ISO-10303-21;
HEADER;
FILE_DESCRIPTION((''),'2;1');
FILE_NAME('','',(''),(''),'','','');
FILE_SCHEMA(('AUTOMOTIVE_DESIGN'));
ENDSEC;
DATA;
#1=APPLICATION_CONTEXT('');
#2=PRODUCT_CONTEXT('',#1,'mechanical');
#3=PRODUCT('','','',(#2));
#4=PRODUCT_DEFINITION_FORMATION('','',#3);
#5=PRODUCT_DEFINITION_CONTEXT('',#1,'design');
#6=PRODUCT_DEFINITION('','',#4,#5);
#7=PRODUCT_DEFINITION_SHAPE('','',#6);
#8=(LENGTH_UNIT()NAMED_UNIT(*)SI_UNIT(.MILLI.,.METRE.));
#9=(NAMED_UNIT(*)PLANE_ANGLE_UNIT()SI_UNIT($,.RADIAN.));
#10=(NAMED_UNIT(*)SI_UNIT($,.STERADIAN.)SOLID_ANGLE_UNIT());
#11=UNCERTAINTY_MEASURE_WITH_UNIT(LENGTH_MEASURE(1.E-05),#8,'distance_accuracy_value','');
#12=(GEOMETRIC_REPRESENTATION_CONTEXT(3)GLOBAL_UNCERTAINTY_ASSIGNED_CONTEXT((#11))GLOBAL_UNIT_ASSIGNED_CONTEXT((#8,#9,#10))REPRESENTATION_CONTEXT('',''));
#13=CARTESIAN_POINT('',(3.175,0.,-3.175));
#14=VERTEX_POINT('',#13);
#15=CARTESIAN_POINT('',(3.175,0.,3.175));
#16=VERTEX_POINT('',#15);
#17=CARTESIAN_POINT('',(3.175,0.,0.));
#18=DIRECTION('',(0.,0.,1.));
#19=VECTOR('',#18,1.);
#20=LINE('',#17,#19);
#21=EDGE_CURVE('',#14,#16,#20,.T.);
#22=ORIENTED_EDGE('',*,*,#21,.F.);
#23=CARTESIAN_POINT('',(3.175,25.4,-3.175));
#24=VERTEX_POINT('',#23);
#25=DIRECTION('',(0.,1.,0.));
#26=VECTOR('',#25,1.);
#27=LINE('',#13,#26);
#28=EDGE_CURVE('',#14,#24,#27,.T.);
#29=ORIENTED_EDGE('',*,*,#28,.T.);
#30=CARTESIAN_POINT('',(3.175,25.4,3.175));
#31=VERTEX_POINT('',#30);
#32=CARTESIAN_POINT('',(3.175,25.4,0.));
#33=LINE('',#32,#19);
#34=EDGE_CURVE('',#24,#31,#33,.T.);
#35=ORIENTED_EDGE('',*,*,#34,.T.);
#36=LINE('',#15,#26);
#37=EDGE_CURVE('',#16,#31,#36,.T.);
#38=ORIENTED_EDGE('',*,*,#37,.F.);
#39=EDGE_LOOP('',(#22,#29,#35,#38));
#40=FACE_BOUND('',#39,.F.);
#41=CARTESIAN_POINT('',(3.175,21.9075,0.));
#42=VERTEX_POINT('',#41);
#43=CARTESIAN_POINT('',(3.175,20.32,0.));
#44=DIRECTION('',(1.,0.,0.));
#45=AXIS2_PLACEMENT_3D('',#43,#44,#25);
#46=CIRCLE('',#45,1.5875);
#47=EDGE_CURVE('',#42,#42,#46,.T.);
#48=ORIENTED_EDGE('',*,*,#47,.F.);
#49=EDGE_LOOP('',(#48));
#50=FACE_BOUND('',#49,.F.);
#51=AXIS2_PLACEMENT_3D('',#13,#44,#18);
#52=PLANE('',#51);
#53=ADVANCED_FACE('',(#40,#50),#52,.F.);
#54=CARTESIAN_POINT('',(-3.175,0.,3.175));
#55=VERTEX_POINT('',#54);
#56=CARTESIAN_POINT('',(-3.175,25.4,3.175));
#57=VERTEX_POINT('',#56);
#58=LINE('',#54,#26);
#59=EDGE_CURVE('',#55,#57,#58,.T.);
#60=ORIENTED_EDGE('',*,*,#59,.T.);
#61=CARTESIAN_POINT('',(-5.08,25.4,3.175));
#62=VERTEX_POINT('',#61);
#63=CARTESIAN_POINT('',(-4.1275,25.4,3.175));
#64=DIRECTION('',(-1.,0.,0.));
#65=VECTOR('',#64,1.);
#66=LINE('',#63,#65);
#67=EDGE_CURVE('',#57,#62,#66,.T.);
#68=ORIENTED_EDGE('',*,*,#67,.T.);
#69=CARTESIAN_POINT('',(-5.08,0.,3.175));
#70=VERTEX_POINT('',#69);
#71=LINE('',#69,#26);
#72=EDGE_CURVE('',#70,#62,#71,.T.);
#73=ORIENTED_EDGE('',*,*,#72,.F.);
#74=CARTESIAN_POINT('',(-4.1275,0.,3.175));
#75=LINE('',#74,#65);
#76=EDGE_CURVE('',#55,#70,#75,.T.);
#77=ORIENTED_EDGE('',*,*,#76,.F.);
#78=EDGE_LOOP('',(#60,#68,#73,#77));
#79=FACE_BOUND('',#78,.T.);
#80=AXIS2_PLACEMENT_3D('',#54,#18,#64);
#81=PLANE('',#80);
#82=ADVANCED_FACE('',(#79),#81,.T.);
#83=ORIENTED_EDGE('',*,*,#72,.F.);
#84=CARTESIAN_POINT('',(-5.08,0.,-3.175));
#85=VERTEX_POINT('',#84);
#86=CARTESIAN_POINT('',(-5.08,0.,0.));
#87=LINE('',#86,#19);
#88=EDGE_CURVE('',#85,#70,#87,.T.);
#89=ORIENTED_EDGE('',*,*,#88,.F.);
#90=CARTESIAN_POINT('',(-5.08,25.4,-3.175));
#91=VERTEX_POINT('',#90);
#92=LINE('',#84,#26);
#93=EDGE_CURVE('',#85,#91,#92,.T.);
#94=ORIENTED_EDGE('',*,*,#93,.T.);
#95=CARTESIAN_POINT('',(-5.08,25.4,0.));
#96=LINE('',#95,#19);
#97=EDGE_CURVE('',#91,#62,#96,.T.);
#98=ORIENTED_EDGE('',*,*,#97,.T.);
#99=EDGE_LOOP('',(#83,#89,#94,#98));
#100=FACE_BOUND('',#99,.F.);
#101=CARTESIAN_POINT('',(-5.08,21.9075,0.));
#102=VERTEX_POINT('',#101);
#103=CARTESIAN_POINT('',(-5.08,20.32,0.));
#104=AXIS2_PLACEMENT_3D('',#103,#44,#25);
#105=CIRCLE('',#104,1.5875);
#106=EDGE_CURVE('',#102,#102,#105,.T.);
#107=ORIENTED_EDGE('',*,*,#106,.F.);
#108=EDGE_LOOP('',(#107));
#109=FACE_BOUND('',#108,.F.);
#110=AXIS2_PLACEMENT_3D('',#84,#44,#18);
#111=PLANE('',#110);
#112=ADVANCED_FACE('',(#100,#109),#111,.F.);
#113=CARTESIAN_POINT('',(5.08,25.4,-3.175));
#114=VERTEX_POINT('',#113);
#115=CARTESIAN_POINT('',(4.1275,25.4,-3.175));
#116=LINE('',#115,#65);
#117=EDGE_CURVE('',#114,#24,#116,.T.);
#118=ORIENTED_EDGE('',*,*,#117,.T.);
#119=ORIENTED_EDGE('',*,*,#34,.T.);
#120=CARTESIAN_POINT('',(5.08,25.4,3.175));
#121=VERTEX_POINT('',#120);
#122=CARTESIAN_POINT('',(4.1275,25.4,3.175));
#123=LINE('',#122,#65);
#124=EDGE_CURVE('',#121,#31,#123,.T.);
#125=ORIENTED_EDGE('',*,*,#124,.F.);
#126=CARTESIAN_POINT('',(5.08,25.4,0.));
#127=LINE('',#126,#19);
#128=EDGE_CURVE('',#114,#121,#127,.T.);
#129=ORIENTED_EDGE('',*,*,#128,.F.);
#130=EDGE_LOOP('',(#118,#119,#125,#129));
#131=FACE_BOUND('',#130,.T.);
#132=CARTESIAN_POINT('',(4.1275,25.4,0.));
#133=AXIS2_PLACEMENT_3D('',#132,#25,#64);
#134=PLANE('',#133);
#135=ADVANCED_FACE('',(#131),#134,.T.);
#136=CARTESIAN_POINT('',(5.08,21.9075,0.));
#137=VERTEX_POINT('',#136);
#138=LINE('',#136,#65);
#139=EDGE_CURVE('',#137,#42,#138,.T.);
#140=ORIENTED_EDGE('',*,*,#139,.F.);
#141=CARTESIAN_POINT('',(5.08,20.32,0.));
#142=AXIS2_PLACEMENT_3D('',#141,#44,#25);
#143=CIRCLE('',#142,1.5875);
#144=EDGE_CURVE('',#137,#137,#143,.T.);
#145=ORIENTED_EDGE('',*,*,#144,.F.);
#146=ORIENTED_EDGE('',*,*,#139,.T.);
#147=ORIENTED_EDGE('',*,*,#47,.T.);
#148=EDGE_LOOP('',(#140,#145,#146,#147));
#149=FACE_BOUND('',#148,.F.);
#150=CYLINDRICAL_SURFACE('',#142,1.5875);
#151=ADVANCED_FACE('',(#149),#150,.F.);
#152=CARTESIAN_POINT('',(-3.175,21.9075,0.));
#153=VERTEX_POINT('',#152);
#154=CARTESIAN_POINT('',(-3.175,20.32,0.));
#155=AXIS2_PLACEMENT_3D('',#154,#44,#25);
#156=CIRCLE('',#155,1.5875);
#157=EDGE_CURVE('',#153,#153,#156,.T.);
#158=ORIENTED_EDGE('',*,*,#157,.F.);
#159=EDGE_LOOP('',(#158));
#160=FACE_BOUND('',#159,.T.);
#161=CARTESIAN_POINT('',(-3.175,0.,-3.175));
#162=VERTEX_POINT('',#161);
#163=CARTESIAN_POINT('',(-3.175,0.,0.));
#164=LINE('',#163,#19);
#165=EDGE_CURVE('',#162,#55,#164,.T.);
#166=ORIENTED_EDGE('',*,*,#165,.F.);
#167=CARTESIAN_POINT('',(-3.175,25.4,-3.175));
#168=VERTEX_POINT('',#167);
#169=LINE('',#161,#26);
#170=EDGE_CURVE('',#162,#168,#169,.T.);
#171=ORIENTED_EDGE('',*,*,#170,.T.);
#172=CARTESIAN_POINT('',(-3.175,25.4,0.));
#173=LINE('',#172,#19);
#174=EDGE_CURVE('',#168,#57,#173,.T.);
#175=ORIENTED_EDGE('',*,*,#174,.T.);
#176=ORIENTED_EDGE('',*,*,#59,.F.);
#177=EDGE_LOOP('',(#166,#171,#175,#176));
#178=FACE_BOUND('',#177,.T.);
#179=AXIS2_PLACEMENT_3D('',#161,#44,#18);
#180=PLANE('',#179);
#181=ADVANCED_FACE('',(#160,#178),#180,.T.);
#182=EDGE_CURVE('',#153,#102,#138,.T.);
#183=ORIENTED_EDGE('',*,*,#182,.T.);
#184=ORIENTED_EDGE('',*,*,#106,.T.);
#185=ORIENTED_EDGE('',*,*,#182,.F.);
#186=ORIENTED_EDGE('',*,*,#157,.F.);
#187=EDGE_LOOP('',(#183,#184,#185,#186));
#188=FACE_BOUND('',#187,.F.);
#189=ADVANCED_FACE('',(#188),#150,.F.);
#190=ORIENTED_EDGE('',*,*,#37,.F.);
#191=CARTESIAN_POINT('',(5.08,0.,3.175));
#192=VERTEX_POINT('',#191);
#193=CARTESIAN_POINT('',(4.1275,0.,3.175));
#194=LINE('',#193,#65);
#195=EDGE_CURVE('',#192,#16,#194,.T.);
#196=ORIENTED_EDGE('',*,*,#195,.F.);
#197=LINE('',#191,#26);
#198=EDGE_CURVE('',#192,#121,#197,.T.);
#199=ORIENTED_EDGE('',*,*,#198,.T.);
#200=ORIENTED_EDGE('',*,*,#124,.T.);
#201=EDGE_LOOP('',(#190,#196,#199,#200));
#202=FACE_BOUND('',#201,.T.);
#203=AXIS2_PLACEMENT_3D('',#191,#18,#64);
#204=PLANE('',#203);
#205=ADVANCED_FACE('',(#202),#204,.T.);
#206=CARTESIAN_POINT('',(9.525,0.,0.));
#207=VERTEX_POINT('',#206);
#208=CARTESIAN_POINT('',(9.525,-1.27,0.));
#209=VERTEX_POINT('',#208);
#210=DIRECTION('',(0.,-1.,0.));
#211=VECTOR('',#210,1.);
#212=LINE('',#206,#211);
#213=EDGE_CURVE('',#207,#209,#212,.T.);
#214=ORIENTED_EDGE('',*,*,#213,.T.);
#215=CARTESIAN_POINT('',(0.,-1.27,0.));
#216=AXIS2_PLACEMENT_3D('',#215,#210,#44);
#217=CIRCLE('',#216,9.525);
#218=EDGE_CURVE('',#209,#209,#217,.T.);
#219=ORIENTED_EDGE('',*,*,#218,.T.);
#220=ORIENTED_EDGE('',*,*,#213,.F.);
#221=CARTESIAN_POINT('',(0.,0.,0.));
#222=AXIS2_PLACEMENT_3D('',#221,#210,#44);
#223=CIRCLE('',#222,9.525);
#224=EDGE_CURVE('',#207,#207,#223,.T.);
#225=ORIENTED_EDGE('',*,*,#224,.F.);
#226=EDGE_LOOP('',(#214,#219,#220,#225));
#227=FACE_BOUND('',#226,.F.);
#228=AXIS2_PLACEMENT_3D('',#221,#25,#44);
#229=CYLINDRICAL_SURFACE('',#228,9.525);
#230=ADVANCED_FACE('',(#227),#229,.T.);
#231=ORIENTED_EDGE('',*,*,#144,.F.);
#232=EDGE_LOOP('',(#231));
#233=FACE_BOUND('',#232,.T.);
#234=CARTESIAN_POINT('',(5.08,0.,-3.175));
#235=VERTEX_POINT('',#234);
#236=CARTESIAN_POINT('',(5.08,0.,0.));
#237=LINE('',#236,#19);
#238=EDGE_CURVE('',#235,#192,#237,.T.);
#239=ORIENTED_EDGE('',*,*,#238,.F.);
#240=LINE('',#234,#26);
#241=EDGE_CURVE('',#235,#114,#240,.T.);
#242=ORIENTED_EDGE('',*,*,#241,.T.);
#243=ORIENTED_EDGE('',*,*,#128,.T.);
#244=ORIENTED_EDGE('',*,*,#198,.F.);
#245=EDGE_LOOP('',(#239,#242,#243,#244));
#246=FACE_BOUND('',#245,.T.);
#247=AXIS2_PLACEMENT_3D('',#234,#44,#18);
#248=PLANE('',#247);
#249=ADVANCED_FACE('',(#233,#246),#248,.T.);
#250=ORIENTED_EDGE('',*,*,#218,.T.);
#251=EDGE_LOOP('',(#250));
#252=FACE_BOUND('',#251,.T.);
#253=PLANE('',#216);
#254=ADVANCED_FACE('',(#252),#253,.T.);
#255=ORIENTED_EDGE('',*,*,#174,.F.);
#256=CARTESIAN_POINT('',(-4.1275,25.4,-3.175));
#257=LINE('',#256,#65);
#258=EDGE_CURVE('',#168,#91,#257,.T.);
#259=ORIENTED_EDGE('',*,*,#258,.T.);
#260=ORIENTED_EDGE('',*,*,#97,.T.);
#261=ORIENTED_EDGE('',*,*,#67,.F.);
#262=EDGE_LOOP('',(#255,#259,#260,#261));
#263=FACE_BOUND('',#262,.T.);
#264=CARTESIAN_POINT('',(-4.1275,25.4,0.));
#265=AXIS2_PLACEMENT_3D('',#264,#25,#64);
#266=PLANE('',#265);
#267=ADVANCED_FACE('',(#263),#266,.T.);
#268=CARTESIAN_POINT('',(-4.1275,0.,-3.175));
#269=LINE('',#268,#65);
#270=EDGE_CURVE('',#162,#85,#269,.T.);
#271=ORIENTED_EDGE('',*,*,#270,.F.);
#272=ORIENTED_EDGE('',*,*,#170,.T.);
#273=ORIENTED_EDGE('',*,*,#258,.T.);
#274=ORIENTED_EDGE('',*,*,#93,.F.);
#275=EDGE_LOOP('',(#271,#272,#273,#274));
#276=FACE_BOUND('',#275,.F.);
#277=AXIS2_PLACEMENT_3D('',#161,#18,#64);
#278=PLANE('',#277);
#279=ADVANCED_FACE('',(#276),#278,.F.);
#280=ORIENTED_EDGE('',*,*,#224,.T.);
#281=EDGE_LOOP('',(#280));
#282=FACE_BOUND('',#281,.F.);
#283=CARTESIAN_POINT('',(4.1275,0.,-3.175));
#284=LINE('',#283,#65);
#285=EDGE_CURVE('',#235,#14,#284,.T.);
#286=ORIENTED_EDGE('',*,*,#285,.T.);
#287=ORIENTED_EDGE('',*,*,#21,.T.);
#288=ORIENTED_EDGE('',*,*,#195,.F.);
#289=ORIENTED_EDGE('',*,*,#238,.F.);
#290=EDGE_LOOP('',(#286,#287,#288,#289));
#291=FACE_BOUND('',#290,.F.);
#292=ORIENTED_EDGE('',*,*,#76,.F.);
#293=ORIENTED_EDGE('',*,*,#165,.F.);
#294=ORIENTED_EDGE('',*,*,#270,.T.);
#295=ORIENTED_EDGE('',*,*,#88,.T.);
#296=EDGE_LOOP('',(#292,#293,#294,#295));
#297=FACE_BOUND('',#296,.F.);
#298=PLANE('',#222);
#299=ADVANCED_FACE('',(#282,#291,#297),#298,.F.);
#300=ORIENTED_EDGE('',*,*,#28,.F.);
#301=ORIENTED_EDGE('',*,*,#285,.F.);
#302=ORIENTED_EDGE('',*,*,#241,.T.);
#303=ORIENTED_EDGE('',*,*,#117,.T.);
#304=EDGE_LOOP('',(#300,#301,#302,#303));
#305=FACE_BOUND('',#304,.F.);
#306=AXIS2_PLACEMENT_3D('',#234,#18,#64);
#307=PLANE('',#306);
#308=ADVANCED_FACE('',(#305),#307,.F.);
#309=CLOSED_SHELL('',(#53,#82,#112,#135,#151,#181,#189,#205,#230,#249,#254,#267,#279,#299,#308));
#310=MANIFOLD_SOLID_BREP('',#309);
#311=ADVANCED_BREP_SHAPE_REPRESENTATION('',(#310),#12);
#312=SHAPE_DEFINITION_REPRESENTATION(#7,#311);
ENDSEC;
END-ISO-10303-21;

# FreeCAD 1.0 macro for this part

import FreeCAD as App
import Part
import Sketcher

V = App.Vector
Q = App.Units.Quantity


def add_polygon(sketch, points):
    """Adds a closed chain of lines whose ends are joined by coincident constraints."""
    first, n = sketch.GeometryCount, len(points)
    for a, b in zip(points, points[1:] + points[:1]):
        sketch.addGeometry(Part.LineSegment(App.Vector(*a, 0), App.Vector(*b, 0)), False)
    for i in range(n):
        sketch.addConstraint(Sketcher.Constraint("Coincident", first + i, 2, first + (i + 1) % n, 1))

doc = App.newDocument("Part")
body = doc.addObject("PartDesign::Body", "Body")

# Sketch on XZ plane
sketch1 = body.newObject("Sketcher::SketchObject", "Sketch")
sketch1.AttachmentSupport = (doc.getObject("XZ_Plane"), [""])
sketch1.MapMode = "FlatFace"
sketch1.addGeometry(Part.Circle(V(0, 0, 0), V(0, 0, 1), 9.525), False)
sketch1.addConstraint([
    Sketcher.Constraint("Coincident", 0, 3, -1, 1),
    Sketcher.Constraint("Diameter", 0, Q("0.75 in")),
])
pad1 = body.newObject("PartDesign::Pad", "Pad")
pad1.Profile = sketch1
pad1.Length = Q("0.05 in")

# Sketch on XZ plane
sketch2 = body.newObject("Sketcher::SketchObject", "Sketch001")
sketch2.AttachmentSupport = (doc.getObject("XZ_Plane"), [""])
sketch2.MapMode = "FlatFace"
add_polygon(sketch2, [(5.08, 3.175), (5.08, -3.175), (3.175, -3.175), (3.175, 3.175)])  # lines 0-3
add_polygon(sketch2, [(-3.175, 3.175), (-3.175, -3.175), (-5.08, -3.175), (-5.08, 3.175)])  # lines 4-7
sketch2.addConstraint([
    Sketcher.Constraint("Vertical", 0),
    Sketcher.Constraint("Horizontal", 1),
    Sketcher.Constraint("Vertical", 2),
    Sketcher.Constraint("Horizontal", 3),
    Sketcher.Constraint("Vertical", 4),
    Sketcher.Constraint("Horizontal", 5),
    Sketcher.Constraint("Vertical", 6),
    Sketcher.Constraint("Horizontal", 7),
    Sketcher.Constraint("Symmetric", 2, 2, 4, 2, -1, 1),
    Sketcher.Constraint("Symmetric", 0, 2, 6, 2, -1, 1),
    Sketcher.Constraint("Horizontal", 1, 2, 4, 2),
    Sketcher.Constraint("DistanceY", 0, 2, 0, 1, Q("0.25 in")),
    Sketcher.Constraint("DistanceX", -1, 1, 0, 2, Q("0.2 in")),
    Sketcher.Constraint("DistanceX", 1, 2, 1, 1, Q("0.075 in")),
])
pad2 = body.newObject("PartDesign::Pad", "Pad001")
pad2.Profile = sketch2
pad2.Length = Q("1 in")
pad2.Reversed = True

# Sketch on YZ plane
sketch3 = body.newObject("Sketcher::SketchObject", "Sketch002")
sketch3.AttachmentSupport = (doc.getObject("YZ_Plane"), [""])
sketch3.MapMode = "FlatFace"
sketch3.AttachmentOffset = App.Placement(V(0, 0, 0.2 * 25.4), App.Rotation())
sketch3.addGeometry(Part.Circle(V(20.32, 0, 0), V(0, 0, 1), 1.5875), False)
sketch3.addConstraint([
    Sketcher.Constraint("PointOnObject", 0, 3, -1),
    Sketcher.Constraint("Diameter", 0, Q("0.125 in")),
    Sketcher.Constraint("DistanceX", -1, 1, 0, 3, Q("0.8 in")),
])
pocket1 = body.newObject("PartDesign::Pocket", "Pocket")
pocket1.Profile = sketch3
pocket1.Type = "ThroughAll"

doc.recompute()
